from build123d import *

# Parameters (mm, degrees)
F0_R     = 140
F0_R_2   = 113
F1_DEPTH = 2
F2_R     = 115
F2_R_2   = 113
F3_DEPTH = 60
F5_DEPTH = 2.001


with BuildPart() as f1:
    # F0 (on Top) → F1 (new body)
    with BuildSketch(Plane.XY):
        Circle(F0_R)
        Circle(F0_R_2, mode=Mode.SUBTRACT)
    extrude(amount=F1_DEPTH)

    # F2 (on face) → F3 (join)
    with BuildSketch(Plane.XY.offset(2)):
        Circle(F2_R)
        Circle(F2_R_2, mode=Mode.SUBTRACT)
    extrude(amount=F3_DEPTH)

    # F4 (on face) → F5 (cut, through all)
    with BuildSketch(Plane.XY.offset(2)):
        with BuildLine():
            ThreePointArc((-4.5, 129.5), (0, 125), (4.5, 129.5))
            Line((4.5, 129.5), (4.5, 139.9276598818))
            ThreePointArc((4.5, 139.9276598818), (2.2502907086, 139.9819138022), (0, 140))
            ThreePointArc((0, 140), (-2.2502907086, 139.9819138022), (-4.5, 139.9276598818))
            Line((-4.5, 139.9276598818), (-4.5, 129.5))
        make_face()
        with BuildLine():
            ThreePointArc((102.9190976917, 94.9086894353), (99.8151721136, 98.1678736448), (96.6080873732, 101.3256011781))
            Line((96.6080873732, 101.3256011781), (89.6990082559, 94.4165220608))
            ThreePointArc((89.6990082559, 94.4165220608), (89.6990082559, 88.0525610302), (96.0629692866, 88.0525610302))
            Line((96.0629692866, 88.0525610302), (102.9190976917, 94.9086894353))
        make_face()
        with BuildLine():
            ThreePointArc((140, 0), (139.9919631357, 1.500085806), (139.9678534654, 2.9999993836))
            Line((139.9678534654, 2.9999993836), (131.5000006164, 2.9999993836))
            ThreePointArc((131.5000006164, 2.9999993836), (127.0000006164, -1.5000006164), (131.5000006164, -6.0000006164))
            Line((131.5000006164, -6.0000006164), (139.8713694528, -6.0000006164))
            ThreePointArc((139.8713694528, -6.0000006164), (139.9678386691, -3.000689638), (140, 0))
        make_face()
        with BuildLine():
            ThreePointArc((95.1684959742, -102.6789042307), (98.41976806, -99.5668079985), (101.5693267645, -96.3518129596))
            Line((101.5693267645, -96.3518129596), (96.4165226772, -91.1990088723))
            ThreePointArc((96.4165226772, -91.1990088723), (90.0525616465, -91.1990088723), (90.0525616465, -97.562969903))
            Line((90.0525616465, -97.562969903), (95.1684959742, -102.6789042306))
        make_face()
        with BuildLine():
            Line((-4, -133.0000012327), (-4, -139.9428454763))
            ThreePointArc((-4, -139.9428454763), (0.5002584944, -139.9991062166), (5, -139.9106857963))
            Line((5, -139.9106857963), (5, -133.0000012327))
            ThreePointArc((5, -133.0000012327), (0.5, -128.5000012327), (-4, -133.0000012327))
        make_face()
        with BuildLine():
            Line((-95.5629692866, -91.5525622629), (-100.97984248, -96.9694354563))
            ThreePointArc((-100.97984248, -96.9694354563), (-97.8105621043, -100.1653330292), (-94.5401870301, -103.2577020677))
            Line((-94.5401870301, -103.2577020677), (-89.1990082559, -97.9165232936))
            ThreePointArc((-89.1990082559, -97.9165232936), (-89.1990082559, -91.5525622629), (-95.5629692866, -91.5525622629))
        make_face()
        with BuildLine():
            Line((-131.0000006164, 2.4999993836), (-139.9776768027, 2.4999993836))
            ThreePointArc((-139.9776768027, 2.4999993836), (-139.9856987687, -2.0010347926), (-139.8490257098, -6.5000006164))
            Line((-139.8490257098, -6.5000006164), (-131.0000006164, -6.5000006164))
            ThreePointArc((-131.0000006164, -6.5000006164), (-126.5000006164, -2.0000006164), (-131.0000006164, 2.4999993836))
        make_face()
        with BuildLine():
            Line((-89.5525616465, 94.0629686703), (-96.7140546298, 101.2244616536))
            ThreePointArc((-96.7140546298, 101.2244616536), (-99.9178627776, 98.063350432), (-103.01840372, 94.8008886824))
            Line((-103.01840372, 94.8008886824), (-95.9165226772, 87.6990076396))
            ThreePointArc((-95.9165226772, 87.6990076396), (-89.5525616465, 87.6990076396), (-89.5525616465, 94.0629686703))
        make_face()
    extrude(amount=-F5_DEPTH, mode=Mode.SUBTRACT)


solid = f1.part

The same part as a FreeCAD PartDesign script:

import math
import FreeCAD as App
import Part
import Sketcher
Q = App.Units.Quantity

doc = App.newDocument("Part")
body = doc.addObject("PartDesign::Body", "Body")

sketch1 = body.newObject("Sketcher::SketchObject", "Sketch")
sketch1.AttachmentSupport = (doc.getObject("XY_Plane"), [""])
sketch1.MapMode = "FlatFace"
sketch1.addGeometry(Part.Circle(App.Vector(0, 0, 0), App.Vector(0, 0, 1), 140), False)
sketch1.addGeometry(Part.Circle(App.Vector(0, 0, 0), App.Vector(0, 0, 1), 113), False)
sketch1.addConstraint(Sketcher.Constraint("Coincident", 0, 3, -1, 1))
sketch1.addConstraint(Sketcher.Constraint("Coincident", 1, 3, -1, 1))
sketch1.addConstraint(Sketcher.Constraint("Diameter", 0, 280.0))
sketch1.addConstraint(Sketcher.Constraint("Diameter", 1, 226.0))
pad1 = body.newObject("PartDesign::Pad", "Pad")
pad1.Profile = sketch1
pad1.Length = 2

sketch2 = body.newObject("Sketcher::SketchObject", "Sketch001")
sketch2.AttachmentSupport = (doc.getObject("XY_Plane"), [""])
sketch2.MapMode = "FlatFace"
sketch2.AttachmentOffset = App.Placement(App.Vector(0, 0, 2), App.Rotation())
sketch2.addGeometry(Part.Circle(App.Vector(0, 0, 0), App.Vector(0, 0, 1), 115), False)
sketch2.addGeometry(Part.Circle(App.Vector(0, 0, 0), App.Vector(0, 0, 1), 113), False)
sketch2.addConstraint(Sketcher.Constraint("Coincident", 0, 3, -1, 1))
sketch2.addConstraint(Sketcher.Constraint("Coincident", 1, 3, -1, 1))
sketch2.addConstraint(Sketcher.Constraint("Diameter", 0, 230.0))
sketch2.addConstraint(Sketcher.Constraint("Diameter", 1, 226.0))
pad2 = body.newObject("PartDesign::Pad", "Pad001")
pad2.Profile = sketch2
pad2.Length = 60

sketch3 = body.newObject("Sketcher::SketchObject", "Sketch002")
sketch3.AttachmentSupport = (doc.getObject("XY_Plane"), [""])
sketch3.MapMode = "FlatFace"
sketch3.AttachmentOffset = App.Placement(App.Vector(0, 0, 2), App.Rotation())
sketch3.addGeometry(Part.ArcOfCircle(Part.Circle(App.Vector(0, 129.5, 0), App.Vector(0, 0, 1), 4.5), math.radians(180), math.radians(360)), False)
sketch3.addGeometry(Part.LineSegment(App.Vector(4.5, 129.5, 0), App.Vector(4.5, 139.9, 0)), False)
sketch3.addGeometry(Part.ArcOfCircle(Part.Circle(App.Vector(0, 0, 0), App.Vector(0, 0, 1), 140), math.radians(88.16), math.radians(90)), False)
sketch3.addGeometry(Part.ArcOfCircle(Part.Circle(App.Vector(0, 0, 0), App.Vector(0, 0, 1), 140), math.radians(90), math.radians(91.84)), False)
sketch3.addGeometry(Part.LineSegment(App.Vector(-4.5, 139.9, 0), App.Vector(-4.5, 129.5, 0)), False)
sketch3.addGeometry(Part.ArcOfCircle(Part.Circle(App.Vector(0, 0, 0), App.Vector(0, 0, 1), 140), math.radians(42.68), math.radians(46.37)), False)
sketch3.addGeometry(Part.LineSegment(App.Vector(96.6, 101.3, 0), App.Vector(89.7, 94.4, 0)), False)
sketch3.addGeometry(Part.ArcOfCircle(Part.Circle(App.Vector(92.9, 91.2, 0), App.Vector(0, 0, 1), 4.5), math.radians(135), math.radians(315)), False)
sketch3.addGeometry(Part.LineSegment(App.Vector(96.1, 88.1, 0), App.Vector(102.9, 94.9, 0)), False)
sketch3.addGeometry(Part.ArcOfCircle(Part.Circle(App.Vector(0, 0, 0), App.Vector(0, 0, 1), 140), math.radians(0), math.radians(1.23)), False)
sketch3.addGeometry(Part.LineSegment(App.Vector(140, 3, 0), App.Vector(131.5, 3, 0)), False)
sketch3.addGeometry(Part.ArcOfCircle(Part.Circle(App.Vector(131.5, -1.5, 0), App.Vector(0, 0, 1), 4.5), math.radians(90), math.radians(270)), False)
sketch3.addGeometry(Part.LineSegment(App.Vector(131.5, -6, 0), App.Vector(139.9, -6, 0)), False)
sketch3.addGeometry(Part.ArcOfCircle(Part.Circle(App.Vector(0, 0, 0), App.Vector(0, 0, 1), 140), math.radians(-2.46), math.radians(0)), False)
sketch3.addGeometry(Part.ArcOfCircle(Part.Circle(App.Vector(0, 0, 0), App.Vector(0, 0, 1), 140), math.radians(-47.17), math.radians(-43.49)), False)
sketch3.addGeometry(Part.LineSegment(App.Vector(101.6, -96.4, 0), App.Vector(96.4, -91.2, 0)), False)
sketch3.addGeometry(Part.ArcOfCircle(Part.Circle(App.Vector(93.2, -94.4, 0), App.Vector(0, 0, 1), 4.5), math.radians(45), math.radians(225)), False)
sketch3.addGeometry(Part.LineSegment(App.Vector(90.1, -97.6, 0), App.Vector(95.2, -102.7, 0)), False)
sketch3.addGeometry(Part.LineSegment(App.Vector(-4, -133, 0), App.Vector(-4, -139.9, 0)), False)
sketch3.addGeometry(Part.ArcOfCircle(Part.Circle(App.Vector(0, 0, 0), App.Vector(0, 0, 1), 140), math.radians(-91.64), math.radians(-87.95)), False)
sketch3.addGeometry(Part.LineSegment(App.Vector(5, -139.9, 0), App.Vector(5, -133, 0)), False)
sketch3.addGeometry(Part.ArcOfCircle(Part.Circle(App.Vector(0.5, -133, 0), App.Vector(0, 0, 1), 4.5), math.radians(0), math.radians(180)), False)
sketch3.addGeometry(Part.LineSegment(App.Vector(-95.6, -91.6, 0), App.Vector(-101, -97, 0)), False)
sketch3.addGeometry(Part.ArcOfCircle(Part.Circle(App.Vector(0, 0, 0), App.Vector(0, 0, 1), 140), math.radians(-136.16), math.radians(-132.48)), False)
sketch3.addGeometry(Part.LineSegment(App.Vector(-94.5, -103.3, 0), App.Vector(-89.2, -97.9, 0)), False)
sketch3.addGeometry(Part.ArcOfCircle(Part.Circle(App.Vector(-92.4, -94.7, 0), App.Vector(0, 0, 1), 4.5), math.radians(-45), math.radians(135)), False)
sketch3.addGeometry(Part.LineSegment(App.Vector(-131, 2.5, 0), App.Vector(-140, 2.5, 0)), False)
sketch3.addGeometry(Part.ArcOfCircle(Part.Circle(App.Vector(0, 0, 0), App.Vector(0, 0, 1), 140), math.radians(178.98), math.radians(182.66)), False)
sketch3.addGeometry(Part.LineSegment(App.Vector(-139.8, -6.5, 0), App.Vector(-131, -6.5, 0)), False)
sketch3.addGeometry(Part.ArcOfCircle(Part.Circle(App.Vector(-131, -2, 0), App.Vector(0, 0, 1), 4.5), math.radians(-90), math.radians(90)), False)
sketch3.addGeometry(Part.LineSegment(App.Vector(-89.6, 94.1, 0), App.Vector(-96.7, 101.2, 0)), False)
sketch3.addGeometry(Part.ArcOfCircle(Part.Circle(App.Vector(0, 0, 0), App.Vector(0, 0, 1), 140), math.radians(133.69), math.radians(137.38)), False)
sketch3.addGeometry(Part.LineSegment(App.Vector(-103, 94.8, 0), App.Vector(-95.9, 87.7, 0)), False)
sketch3.addGeometry(Part.ArcOfCircle(Part.Circle(App.Vector(-92.7, 90.9, 0), App.Vector(0, 0, 1), 4.5), math.radians(-135), math.radians(45)), False)
sketch3.addConstraint(Sketcher.Constraint("Tangent", 0, 2, 1, 1))
sketch3.addConstraint(Sketcher.Constraint("Coincident", 1, 2, 2, 1))
sketch3.addConstraint(Sketcher.Constraint("Tangent", 2, 2, 3, 1))
sketch3.addConstraint(Sketcher.Constraint("Coincident", 3, 2, 4, 1))
sketch3.addConstraint(Sketcher.Constraint("Tangent", 4, 2, 0, 1))
sketch3.addConstraint(Sketcher.Constraint("Coincident", 5, 2, 6, 1))
sketch3.addConstraint(Sketcher.Constraint("Tangent", 6, 2, 7, 1))
sketch3.addConstraint(Sketcher.Constraint("Tangent", 7, 2, 8, 1))
sketch3.addConstraint(Sketcher.Constraint("Coincident", 8, 2, 5, 1))
sketch3.addConstraint(Sketcher.Constraint("Coincident", 9, 2, 10, 1))
sketch3.addConstraint(Sketcher.Constraint("Tangent", 10, 2, 11, 1))
sketch3.addConstraint(Sketcher.Constraint("Tangent", 11, 2, 12, 1))
sketch3.addConstraint(Sketcher.Constraint("Coincident", 12, 2, 13, 1))
sketch3.addConstraint(Sketcher.Constraint("Tangent", 13, 2, 9, 1))
sketch3.addConstraint(Sketcher.Constraint("Coincident", 14, 2, 15, 1))
sketch3.addConstraint(Sketcher.Constraint("Tangent", 15, 2, 16, 1))
sketch3.addConstraint(Sketcher.Constraint("Tangent", 16, 2, 17, 1))
sketch3.addConstraint(Sketcher.Constraint("Coincident", 17, 2, 14, 1))
sketch3.addConstraint(Sketcher.Constraint("Coincident", 18, 2, 19, 1))
sketch3.addConstraint(Sketcher.Constraint("Coincident", 19, 2, 20, 1))
sketch3.addConstraint(Sketcher.Constraint("Tangent", 20, 2, 21, 1))
sketch3.addConstraint(Sketcher.Constraint("Tangent", 21, 2, 18, 1))
sketch3.addConstraint(Sketcher.Constraint("Coincident", 22, 2, 23, 1))
sketch3.addConstraint(Sketcher.Constraint("Coincident", 23, 2, 24, 1))
sketch3.addConstraint(Sketcher.Constraint("Tangent", 24, 2, 25, 1))
sketch3.addConstraint(Sketcher.Constraint("Tangent", 25, 2, 22, 1))
sketch3.addConstraint(Sketcher.Constraint("Coincident", 26, 2, 27, 1))
sketch3.addConstraint(Sketcher.Constraint("Coincident", 27, 2, 28, 1))
sketch3.addConstraint(Sketcher.Constraint("Tangent", 28, 2, 29, 1))
sketch3.addConstraint(Sketcher.Constraint("Tangent", 29, 2, 26, 1))
sketch3.addConstraint(Sketcher.Constraint("Coincident", 30, 2, 31, 1))
sketch3.addConstraint(Sketcher.Constraint("Coincident", 31, 2, 32, 1))
sketch3.addConstraint(Sketcher.Constraint("Tangent", 32, 2, 33, 1))
sketch3.addConstraint(Sketcher.Constraint("Tangent", 33, 2, 30, 1))
sketch3.addConstraint(Sketcher.Constraint("Vertical", 1))
sketch3.addConstraint(Sketcher.Constraint("Vertical", 4))
sketch3.addConstraint(Sketcher.Constraint("Horizontal", 10))
sketch3.addConstraint(Sketcher.Constraint("Horizontal", 12))
sketch3.addConstraint(Sketcher.Constraint("Vertical", 18))
sketch3.addConstraint(Sketcher.Constraint("Vertical", 20))
sketch3.addConstraint(Sketcher.Constraint("Horizontal", 26))
sketch3.addConstraint(Sketcher.Constraint("Horizontal", 28))
sketch3.addConstraint(Sketcher.Constraint("Coincident", 2, 3, -1, 1))
sketch3.addConstraint(Sketcher.Constraint("Coincident", 5, 3, -1, 1))
sketch3.addConstraint(Sketcher.Constraint("Coincident", 9, 3, -1, 1))
sketch3.addConstraint(Sketcher.Constraint("Coincident", 14, 3, -1, 1))
sketch3.addConstraint(Sketcher.Constraint("Coincident", 19, 3, -1, 1))
sketch3.addConstraint(Sketcher.Constraint("Coincident", 23, 3, -1, 1))
sketch3.addConstraint(Sketcher.Constraint("Coincident", 27, 3, -1, 1))
sketch3.addConstraint(Sketcher.Constraint("Coincident", 31, 3, -1, 1))
sketch3.addConstraint(Sketcher.Constraint("Equal", 2, 3))
sketch3.addConstraint(Sketcher.Constraint("Equal", 3, 5))
sketch3.addConstraint(Sketcher.Constraint("Equal", 0, 7))
sketch3.addConstraint(Sketcher.Constraint("Equal", 5, 9))
sketch3.addConstraint(Sketcher.Constraint("Equal", 7, 11))
sketch3.addConstraint(Sketcher.Constraint("Equal", 9, 13))
sketch3.addConstraint(Sketcher.Constraint("Equal", 13, 14))
sketch3.addConstraint(Sketcher.Constraint("Equal", 11, 16))
sketch3.addConstraint(Sketcher.Constraint("Equal", 14, 19))
sketch3.addConstraint(Sketcher.Constraint("Equal", 16, 21))
sketch3.addConstraint(Sketcher.Constraint("Equal", 19, 23))
sketch3.addConstraint(Sketcher.Constraint("Equal", 21, 25))
sketch3.addConstraint(Sketcher.Constraint("Equal", 23, 27))
sketch3.addConstraint(Sketcher.Constraint("Equal", 25, 29))
sketch3.addConstraint(Sketcher.Constraint("Equal", 27, 31))
sketch3.addConstraint(Sketcher.Constraint("Equal", 29, 33))
sketch3.addConstraint(Sketcher.Constraint("PointOnObject", 0, 3, -2))
sketch3.addConstraint(Sketcher.Constraint("PointOnObject", 2, 2, -2))
sketch3.addConstraint(Sketcher.Constraint("PointOnObject", 13, 2, -1))
sketch3.addConstraint(Sketcher.Constraint("Parallel", 6, 8))
sketch3.addConstraint(Sketcher.Constraint("Perpendicular", 8, 15))
sketch3.addConstraint(Sketcher.Constraint("Parallel", 15, 17))
sketch3.addConstraint(Sketcher.Constraint("Perpendicular", 17, 22))
sketch3.addConstraint(Sketcher.Constraint("Parallel", 22, 24))
sketch3.addConstraint(Sketcher.Constraint("Perpendicular", 24, 30))
sketch3.addConstraint(Sketcher.Constraint("Parallel", 30, 32))
sketch3.addConstraint(Sketcher.Constraint("Radius", 2, 140.0))
sketch3.addConstraint(Sketcher.Constraint("Radius", 0, 4.5))
sketch3.addConstraint(Sketcher.Constraint("Angle", 6, Q("-135 deg")))
sketch3.addConstraint(Sketcher.Constraint("DistanceY", 21, 3, -1, 1, 133.000001))
sketch3.addConstraint(Sketcher.Constraint("DistanceX", 29, 3, -1, 1, 131.000001))
sketch3.addConstraint(Sketcher.Constraint("DistanceY", 29, 3, -1, 1, 2.000001))
sketch3.addConstraint(Sketcher.Constraint("DistanceY", -1, 1, 9, 2, 2.999999))
sketch3.addConstraint(Sketcher.Constraint("DistanceX", 18, 2, -1, 1, 4.0))
sketch3.addConstraint(Sketcher.Constraint("DistanceY", -1, 1, 0, 3, 129.5))
sketch3.addConstraint(Sketcher.Constraint("DistanceX", -1, 1, 11, 3, 131.500001))
sketch3.addConstraint(Sketcher.Constraint("DistanceY", -1, 1, 5, 2, 101.325601))
sketch3.addConstraint(Sketcher.Constraint("DistanceX", 7, 3, 5, 2, 3.727099))
sketch3.addConstraint(Sketcher.Constraint("DistanceX", 23, 2, 25, 3, 2.159198))
sketch3.addConstraint(Sketcher.Constraint("DistanceY", 21, 2, 23, 2, 29.742299))
sketch3.addConstraint(Sketcher.Constraint("DistanceY", 30, 2, 3, 2, 38.703198))
sketch3.addConstraint(Sketcher.Constraint("DistanceY", 33, 3, 31, 2, 3.919901))
sketch3.addConstraint(Sketcher.Constraint("DistanceY", 16, 3, -1, 1, 94.380989))
sketch3.addConstraint(Sketcher.Constraint("DistanceX", -1, 1, 16, 2, 90.052562))
pocket1 = body.newObject("PartDesign::Pocket", "Pocket")
pocket1.Profile = sketch3
pocket1.Type = "ThroughAll"

doc.recompute()
